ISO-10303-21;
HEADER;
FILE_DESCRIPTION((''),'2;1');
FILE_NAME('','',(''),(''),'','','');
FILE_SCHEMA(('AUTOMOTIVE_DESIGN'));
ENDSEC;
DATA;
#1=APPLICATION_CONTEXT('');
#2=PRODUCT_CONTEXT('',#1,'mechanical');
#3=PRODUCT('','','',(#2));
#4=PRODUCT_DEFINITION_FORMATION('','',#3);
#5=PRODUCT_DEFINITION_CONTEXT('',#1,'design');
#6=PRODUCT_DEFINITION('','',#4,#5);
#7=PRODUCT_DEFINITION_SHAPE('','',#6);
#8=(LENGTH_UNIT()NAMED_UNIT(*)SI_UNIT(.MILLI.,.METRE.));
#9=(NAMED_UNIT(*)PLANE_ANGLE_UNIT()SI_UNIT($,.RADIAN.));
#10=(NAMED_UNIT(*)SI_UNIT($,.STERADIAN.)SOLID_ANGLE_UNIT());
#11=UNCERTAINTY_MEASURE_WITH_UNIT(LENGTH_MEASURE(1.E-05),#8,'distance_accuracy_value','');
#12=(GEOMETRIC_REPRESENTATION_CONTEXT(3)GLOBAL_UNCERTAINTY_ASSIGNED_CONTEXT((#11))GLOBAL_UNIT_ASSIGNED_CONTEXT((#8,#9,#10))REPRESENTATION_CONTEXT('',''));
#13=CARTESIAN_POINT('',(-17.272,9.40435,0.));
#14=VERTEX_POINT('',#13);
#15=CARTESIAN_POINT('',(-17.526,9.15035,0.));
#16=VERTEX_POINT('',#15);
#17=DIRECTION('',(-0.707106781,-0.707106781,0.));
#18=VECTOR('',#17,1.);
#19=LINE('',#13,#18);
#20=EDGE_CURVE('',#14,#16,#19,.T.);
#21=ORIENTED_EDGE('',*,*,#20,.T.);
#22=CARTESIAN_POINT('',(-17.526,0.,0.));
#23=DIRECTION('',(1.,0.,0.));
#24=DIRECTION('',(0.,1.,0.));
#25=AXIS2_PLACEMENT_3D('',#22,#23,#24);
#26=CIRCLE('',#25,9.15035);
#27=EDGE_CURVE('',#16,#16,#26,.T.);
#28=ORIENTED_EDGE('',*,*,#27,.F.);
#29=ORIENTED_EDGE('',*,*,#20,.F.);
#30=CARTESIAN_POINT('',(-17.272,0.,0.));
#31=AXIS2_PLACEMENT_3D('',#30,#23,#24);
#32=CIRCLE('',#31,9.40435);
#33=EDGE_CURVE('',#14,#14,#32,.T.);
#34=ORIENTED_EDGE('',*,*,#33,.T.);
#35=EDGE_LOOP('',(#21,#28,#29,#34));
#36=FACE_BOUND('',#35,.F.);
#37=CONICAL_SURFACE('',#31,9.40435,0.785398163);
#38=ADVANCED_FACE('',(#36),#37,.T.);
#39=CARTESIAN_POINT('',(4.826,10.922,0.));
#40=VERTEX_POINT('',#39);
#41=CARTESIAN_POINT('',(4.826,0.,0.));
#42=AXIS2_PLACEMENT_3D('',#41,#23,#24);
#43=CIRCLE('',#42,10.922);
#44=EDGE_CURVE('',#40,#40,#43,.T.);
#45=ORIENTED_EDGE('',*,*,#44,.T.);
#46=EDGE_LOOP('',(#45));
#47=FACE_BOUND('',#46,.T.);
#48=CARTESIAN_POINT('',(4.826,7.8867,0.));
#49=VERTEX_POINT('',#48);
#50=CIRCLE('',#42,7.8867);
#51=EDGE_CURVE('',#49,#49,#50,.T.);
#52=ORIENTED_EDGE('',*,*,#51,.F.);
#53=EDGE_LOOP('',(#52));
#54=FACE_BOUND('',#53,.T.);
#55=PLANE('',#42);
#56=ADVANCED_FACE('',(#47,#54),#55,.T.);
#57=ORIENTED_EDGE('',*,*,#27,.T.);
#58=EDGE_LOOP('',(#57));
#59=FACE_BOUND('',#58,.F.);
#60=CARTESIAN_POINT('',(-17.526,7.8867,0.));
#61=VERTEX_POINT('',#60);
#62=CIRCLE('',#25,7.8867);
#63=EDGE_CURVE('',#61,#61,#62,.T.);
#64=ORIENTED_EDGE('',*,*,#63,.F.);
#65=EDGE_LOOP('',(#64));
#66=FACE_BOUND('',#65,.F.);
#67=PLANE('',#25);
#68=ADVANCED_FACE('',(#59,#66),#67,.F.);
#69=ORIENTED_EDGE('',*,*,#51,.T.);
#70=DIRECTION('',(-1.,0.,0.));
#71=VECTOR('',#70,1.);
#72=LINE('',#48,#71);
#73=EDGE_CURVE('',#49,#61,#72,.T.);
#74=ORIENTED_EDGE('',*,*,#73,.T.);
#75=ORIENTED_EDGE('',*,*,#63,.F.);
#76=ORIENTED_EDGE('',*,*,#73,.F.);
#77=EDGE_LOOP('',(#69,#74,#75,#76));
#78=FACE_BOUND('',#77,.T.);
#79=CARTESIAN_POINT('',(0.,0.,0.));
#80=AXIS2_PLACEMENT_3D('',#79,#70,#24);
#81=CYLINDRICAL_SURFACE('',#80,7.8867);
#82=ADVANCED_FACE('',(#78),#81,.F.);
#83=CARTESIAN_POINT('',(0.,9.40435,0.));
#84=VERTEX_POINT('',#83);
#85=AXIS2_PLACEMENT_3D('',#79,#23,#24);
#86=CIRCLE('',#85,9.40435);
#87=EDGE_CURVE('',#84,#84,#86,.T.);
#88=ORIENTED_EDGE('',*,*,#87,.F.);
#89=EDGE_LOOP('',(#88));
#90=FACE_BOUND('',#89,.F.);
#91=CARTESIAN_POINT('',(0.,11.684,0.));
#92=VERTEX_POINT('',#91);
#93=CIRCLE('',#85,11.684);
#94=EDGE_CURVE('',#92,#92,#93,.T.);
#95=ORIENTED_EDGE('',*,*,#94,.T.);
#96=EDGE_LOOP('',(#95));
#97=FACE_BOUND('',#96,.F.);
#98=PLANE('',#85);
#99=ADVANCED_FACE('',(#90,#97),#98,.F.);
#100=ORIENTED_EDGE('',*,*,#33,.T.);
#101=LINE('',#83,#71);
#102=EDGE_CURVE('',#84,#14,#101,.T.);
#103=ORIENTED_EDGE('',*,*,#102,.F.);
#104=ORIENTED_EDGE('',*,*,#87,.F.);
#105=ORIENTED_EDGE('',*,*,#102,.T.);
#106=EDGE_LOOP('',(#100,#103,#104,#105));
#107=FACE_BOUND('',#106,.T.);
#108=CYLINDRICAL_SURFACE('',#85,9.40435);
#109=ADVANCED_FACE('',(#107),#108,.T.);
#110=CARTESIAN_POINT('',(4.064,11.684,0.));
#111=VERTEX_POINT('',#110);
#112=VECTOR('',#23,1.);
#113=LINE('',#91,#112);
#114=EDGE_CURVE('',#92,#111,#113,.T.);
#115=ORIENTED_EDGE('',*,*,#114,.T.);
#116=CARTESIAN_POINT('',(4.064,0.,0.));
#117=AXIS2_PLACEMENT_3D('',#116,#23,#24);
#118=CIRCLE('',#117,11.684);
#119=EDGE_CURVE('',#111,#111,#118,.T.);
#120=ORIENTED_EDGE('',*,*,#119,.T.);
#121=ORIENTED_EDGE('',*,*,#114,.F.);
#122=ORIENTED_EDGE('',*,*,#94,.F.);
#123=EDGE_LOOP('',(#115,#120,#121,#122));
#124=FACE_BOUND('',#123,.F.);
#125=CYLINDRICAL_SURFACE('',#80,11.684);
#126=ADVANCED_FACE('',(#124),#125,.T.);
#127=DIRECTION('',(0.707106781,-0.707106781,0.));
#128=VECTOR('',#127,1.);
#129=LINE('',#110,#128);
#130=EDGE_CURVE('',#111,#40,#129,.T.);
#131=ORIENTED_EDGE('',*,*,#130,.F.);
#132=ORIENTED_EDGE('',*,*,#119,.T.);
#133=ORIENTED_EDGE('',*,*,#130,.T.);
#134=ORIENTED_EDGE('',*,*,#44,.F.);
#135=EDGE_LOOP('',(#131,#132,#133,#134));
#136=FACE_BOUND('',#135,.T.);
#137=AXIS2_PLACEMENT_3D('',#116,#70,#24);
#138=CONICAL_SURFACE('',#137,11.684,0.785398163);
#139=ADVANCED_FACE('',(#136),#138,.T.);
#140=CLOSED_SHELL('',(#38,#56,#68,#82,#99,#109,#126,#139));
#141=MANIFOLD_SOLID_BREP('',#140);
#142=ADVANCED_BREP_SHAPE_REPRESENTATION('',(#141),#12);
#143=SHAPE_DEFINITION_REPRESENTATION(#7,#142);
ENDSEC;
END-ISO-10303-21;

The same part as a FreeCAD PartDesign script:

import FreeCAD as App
import Part
import Sketcher
from FreeCAD import Vector
Q = App.Units.Quantity


def edges_at(feature, points):
    """Names of the edges that pass closest to the given points."""
    edges = feature.Shape.Edges
    near = lambda p: min(range(len(edges)), key=lambda i: edges[i].distToShape(Part.Vertex(*p))[0])
    return sorted({f"Edge{near(p) + 1}" for p in points})

doc = App.newDocument("Part")
body = doc.addObject("PartDesign::Body", "Body")

# Sketch on YZ plane
sketch1 = body.newObject("Sketcher::SketchObject", "Sketch")
sketch1.AttachmentSupport = (doc.getObject("YZ_Plane"), [""])
sketch1.MapMode = "FlatFace"
sketch1.addGeometry([
    Part.Circle(Vector(0, 0, 0), Vector(0, 0, 1), 12),
    Part.Circle(Vector(0, 0, 0), Vector(0, 0, 1), 8),
], False)
sketch1.addConstraint([
    Sketcher.Constraint("Coincident", 0, 3, -1, 1),
    Sketcher.Constraint("Coincident", 1, 3, -1, 1),
    Sketcher.Constraint("Diameter", 0, Q("0.92 in")),
    Sketcher.Constraint("Diameter", 1, Q("0.621 in")),
])
pad1 = body.newObject("PartDesign::Pad", "Pad")
pad1.Profile = sketch1
pad1.Length = Q("0.19 in")

# Sketch on YZ plane
sketch2 = body.newObject("Sketcher::SketchObject", "Sketch001")
sketch2.AttachmentSupport = (doc.getObject("YZ_Plane"), [""])
sketch2.MapMode = "FlatFace"
sketch2.addGeometry([
    Part.Circle(Vector(0, 0, 0), Vector(0, 0, 1), 9),
    Part.Circle(Vector(0, 0, 0), Vector(0, 0, 1), 8),
], False)
sketch2.addConstraint([
    Sketcher.Constraint("Coincident", 0, 3, -1, 1),
    Sketcher.Constraint("Coincident", 1, 3, -1, 1),
    Sketcher.Constraint("Diameter", 1, Q("0.621 in")),
    Sketcher.Constraint("Diameter", 0, Q("0.7405 in")),
])
pad2 = body.newObject("PartDesign::Pad", "Pad001")
pad2.Profile = sketch2
pad2.Length = Q("0.69 in")
pad2.Reversed = True
doc.recompute()

chamfer = body.newObject("PartDesign::Chamfer", "Chamfer")
chamfer.Base = (pad2, edges_at(pad2, [(4.826, -11.684, 0)]))
chamfer.Size = Q("0.03 in")
doc.recompute()

chamfer2 = body.newObject("PartDesign::Chamfer", "Chamfer001")
chamfer2.Base = (chamfer, edges_at(chamfer, [(-17.526, -9.404, 0)]))
chamfer2.Size = Q("0.01 in")

doc.recompute()
